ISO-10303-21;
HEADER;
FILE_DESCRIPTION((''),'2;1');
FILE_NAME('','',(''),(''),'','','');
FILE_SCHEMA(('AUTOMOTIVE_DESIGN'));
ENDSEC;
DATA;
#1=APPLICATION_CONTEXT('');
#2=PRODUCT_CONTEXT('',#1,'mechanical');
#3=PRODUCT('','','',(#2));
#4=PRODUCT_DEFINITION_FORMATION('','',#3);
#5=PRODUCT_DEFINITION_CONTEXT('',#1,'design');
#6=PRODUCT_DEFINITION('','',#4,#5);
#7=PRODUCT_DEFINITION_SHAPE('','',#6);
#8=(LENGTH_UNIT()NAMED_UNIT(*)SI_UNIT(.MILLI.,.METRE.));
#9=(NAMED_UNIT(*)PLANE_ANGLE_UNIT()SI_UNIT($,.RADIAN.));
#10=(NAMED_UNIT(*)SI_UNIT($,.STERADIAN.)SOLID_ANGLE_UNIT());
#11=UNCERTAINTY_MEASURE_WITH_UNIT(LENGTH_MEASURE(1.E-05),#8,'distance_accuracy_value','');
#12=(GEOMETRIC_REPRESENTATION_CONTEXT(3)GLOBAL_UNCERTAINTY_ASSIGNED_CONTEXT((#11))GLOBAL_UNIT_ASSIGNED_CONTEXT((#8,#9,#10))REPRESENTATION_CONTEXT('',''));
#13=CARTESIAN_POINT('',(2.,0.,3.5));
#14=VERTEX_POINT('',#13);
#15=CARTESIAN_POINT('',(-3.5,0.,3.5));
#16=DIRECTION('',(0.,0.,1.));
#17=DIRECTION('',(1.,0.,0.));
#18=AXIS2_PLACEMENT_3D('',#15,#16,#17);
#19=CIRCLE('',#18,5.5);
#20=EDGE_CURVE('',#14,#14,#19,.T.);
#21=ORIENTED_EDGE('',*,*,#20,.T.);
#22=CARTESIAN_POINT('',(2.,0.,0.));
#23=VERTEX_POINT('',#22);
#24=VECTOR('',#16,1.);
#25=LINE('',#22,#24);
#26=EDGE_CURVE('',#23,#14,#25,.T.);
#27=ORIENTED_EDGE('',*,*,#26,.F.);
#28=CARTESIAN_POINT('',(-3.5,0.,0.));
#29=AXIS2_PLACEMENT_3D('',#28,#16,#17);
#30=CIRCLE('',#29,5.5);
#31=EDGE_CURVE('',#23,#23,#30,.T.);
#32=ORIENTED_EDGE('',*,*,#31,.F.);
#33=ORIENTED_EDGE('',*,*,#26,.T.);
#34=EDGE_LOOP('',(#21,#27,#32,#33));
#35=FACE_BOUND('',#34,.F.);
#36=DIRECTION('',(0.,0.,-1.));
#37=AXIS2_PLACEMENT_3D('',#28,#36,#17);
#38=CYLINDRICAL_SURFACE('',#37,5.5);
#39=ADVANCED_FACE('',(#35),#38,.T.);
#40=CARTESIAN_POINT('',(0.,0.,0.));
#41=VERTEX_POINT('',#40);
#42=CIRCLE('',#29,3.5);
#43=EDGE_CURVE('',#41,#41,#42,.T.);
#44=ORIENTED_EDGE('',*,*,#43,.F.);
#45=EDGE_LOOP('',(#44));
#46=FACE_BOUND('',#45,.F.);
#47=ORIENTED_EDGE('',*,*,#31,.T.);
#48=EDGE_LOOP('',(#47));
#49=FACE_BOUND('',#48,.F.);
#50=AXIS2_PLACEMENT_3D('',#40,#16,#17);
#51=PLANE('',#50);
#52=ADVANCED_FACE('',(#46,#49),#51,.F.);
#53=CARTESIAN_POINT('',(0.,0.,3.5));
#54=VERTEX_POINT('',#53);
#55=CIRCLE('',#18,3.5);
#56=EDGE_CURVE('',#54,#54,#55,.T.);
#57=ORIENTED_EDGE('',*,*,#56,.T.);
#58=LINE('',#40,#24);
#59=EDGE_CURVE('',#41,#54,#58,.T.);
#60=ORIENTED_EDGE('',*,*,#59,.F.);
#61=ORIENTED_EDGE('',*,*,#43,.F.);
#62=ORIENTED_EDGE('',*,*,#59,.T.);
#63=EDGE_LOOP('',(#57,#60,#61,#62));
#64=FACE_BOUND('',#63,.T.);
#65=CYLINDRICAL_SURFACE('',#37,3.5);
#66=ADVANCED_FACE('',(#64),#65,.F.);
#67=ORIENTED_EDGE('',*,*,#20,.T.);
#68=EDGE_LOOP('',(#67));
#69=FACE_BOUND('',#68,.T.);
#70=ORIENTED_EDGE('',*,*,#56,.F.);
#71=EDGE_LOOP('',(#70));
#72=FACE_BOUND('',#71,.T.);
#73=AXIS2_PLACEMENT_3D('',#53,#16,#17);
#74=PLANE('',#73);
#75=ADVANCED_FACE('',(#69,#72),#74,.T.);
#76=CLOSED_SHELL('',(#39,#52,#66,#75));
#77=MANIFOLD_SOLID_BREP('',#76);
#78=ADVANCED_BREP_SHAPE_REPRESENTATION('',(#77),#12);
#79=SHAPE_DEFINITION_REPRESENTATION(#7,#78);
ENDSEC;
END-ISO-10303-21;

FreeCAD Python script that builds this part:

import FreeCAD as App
import Part
import Sketcher
from FreeCAD import Vector
Q = App.Units.Quantity

doc = App.newDocument("Part")
body = doc.addObject("PartDesign::Body", "Body")

# Sketch on XY plane
sketch1 = body.newObject("Sketcher::SketchObject", "Sketch")
sketch1.AttachmentSupport = (doc.getObject("XY_Plane"), [""])
sketch1.MapMode = "FlatFace"
sketch1.addGeometry([
    Part.Circle(Vector(-3.5, 0, 0), Vector(0, 0, 1), 5.5),
    Part.Circle(Vector(-3.5, 0, 0), Vector(0, 0, 1), 3.5),
], False)
sketch1.addConstraint([
    Sketcher.Constraint("Coincident", 1, 3, 0, 3),
    Sketcher.Constraint("PointOnObject", 0, 3, -1),
    Sketcher.Constraint("Diameter", 0, Q("11 mm")),
    Sketcher.Constraint("Diameter", 1, Q("7 mm")),
    Sketcher.Constraint("DistanceX", 0, 3, -1, 1, Q("3.5 mm")),
])
pad1 = body.newObject("PartDesign::Pad", "Pad")
pad1.Profile = sketch1
pad1.Length = 3.5

doc.recompute()
